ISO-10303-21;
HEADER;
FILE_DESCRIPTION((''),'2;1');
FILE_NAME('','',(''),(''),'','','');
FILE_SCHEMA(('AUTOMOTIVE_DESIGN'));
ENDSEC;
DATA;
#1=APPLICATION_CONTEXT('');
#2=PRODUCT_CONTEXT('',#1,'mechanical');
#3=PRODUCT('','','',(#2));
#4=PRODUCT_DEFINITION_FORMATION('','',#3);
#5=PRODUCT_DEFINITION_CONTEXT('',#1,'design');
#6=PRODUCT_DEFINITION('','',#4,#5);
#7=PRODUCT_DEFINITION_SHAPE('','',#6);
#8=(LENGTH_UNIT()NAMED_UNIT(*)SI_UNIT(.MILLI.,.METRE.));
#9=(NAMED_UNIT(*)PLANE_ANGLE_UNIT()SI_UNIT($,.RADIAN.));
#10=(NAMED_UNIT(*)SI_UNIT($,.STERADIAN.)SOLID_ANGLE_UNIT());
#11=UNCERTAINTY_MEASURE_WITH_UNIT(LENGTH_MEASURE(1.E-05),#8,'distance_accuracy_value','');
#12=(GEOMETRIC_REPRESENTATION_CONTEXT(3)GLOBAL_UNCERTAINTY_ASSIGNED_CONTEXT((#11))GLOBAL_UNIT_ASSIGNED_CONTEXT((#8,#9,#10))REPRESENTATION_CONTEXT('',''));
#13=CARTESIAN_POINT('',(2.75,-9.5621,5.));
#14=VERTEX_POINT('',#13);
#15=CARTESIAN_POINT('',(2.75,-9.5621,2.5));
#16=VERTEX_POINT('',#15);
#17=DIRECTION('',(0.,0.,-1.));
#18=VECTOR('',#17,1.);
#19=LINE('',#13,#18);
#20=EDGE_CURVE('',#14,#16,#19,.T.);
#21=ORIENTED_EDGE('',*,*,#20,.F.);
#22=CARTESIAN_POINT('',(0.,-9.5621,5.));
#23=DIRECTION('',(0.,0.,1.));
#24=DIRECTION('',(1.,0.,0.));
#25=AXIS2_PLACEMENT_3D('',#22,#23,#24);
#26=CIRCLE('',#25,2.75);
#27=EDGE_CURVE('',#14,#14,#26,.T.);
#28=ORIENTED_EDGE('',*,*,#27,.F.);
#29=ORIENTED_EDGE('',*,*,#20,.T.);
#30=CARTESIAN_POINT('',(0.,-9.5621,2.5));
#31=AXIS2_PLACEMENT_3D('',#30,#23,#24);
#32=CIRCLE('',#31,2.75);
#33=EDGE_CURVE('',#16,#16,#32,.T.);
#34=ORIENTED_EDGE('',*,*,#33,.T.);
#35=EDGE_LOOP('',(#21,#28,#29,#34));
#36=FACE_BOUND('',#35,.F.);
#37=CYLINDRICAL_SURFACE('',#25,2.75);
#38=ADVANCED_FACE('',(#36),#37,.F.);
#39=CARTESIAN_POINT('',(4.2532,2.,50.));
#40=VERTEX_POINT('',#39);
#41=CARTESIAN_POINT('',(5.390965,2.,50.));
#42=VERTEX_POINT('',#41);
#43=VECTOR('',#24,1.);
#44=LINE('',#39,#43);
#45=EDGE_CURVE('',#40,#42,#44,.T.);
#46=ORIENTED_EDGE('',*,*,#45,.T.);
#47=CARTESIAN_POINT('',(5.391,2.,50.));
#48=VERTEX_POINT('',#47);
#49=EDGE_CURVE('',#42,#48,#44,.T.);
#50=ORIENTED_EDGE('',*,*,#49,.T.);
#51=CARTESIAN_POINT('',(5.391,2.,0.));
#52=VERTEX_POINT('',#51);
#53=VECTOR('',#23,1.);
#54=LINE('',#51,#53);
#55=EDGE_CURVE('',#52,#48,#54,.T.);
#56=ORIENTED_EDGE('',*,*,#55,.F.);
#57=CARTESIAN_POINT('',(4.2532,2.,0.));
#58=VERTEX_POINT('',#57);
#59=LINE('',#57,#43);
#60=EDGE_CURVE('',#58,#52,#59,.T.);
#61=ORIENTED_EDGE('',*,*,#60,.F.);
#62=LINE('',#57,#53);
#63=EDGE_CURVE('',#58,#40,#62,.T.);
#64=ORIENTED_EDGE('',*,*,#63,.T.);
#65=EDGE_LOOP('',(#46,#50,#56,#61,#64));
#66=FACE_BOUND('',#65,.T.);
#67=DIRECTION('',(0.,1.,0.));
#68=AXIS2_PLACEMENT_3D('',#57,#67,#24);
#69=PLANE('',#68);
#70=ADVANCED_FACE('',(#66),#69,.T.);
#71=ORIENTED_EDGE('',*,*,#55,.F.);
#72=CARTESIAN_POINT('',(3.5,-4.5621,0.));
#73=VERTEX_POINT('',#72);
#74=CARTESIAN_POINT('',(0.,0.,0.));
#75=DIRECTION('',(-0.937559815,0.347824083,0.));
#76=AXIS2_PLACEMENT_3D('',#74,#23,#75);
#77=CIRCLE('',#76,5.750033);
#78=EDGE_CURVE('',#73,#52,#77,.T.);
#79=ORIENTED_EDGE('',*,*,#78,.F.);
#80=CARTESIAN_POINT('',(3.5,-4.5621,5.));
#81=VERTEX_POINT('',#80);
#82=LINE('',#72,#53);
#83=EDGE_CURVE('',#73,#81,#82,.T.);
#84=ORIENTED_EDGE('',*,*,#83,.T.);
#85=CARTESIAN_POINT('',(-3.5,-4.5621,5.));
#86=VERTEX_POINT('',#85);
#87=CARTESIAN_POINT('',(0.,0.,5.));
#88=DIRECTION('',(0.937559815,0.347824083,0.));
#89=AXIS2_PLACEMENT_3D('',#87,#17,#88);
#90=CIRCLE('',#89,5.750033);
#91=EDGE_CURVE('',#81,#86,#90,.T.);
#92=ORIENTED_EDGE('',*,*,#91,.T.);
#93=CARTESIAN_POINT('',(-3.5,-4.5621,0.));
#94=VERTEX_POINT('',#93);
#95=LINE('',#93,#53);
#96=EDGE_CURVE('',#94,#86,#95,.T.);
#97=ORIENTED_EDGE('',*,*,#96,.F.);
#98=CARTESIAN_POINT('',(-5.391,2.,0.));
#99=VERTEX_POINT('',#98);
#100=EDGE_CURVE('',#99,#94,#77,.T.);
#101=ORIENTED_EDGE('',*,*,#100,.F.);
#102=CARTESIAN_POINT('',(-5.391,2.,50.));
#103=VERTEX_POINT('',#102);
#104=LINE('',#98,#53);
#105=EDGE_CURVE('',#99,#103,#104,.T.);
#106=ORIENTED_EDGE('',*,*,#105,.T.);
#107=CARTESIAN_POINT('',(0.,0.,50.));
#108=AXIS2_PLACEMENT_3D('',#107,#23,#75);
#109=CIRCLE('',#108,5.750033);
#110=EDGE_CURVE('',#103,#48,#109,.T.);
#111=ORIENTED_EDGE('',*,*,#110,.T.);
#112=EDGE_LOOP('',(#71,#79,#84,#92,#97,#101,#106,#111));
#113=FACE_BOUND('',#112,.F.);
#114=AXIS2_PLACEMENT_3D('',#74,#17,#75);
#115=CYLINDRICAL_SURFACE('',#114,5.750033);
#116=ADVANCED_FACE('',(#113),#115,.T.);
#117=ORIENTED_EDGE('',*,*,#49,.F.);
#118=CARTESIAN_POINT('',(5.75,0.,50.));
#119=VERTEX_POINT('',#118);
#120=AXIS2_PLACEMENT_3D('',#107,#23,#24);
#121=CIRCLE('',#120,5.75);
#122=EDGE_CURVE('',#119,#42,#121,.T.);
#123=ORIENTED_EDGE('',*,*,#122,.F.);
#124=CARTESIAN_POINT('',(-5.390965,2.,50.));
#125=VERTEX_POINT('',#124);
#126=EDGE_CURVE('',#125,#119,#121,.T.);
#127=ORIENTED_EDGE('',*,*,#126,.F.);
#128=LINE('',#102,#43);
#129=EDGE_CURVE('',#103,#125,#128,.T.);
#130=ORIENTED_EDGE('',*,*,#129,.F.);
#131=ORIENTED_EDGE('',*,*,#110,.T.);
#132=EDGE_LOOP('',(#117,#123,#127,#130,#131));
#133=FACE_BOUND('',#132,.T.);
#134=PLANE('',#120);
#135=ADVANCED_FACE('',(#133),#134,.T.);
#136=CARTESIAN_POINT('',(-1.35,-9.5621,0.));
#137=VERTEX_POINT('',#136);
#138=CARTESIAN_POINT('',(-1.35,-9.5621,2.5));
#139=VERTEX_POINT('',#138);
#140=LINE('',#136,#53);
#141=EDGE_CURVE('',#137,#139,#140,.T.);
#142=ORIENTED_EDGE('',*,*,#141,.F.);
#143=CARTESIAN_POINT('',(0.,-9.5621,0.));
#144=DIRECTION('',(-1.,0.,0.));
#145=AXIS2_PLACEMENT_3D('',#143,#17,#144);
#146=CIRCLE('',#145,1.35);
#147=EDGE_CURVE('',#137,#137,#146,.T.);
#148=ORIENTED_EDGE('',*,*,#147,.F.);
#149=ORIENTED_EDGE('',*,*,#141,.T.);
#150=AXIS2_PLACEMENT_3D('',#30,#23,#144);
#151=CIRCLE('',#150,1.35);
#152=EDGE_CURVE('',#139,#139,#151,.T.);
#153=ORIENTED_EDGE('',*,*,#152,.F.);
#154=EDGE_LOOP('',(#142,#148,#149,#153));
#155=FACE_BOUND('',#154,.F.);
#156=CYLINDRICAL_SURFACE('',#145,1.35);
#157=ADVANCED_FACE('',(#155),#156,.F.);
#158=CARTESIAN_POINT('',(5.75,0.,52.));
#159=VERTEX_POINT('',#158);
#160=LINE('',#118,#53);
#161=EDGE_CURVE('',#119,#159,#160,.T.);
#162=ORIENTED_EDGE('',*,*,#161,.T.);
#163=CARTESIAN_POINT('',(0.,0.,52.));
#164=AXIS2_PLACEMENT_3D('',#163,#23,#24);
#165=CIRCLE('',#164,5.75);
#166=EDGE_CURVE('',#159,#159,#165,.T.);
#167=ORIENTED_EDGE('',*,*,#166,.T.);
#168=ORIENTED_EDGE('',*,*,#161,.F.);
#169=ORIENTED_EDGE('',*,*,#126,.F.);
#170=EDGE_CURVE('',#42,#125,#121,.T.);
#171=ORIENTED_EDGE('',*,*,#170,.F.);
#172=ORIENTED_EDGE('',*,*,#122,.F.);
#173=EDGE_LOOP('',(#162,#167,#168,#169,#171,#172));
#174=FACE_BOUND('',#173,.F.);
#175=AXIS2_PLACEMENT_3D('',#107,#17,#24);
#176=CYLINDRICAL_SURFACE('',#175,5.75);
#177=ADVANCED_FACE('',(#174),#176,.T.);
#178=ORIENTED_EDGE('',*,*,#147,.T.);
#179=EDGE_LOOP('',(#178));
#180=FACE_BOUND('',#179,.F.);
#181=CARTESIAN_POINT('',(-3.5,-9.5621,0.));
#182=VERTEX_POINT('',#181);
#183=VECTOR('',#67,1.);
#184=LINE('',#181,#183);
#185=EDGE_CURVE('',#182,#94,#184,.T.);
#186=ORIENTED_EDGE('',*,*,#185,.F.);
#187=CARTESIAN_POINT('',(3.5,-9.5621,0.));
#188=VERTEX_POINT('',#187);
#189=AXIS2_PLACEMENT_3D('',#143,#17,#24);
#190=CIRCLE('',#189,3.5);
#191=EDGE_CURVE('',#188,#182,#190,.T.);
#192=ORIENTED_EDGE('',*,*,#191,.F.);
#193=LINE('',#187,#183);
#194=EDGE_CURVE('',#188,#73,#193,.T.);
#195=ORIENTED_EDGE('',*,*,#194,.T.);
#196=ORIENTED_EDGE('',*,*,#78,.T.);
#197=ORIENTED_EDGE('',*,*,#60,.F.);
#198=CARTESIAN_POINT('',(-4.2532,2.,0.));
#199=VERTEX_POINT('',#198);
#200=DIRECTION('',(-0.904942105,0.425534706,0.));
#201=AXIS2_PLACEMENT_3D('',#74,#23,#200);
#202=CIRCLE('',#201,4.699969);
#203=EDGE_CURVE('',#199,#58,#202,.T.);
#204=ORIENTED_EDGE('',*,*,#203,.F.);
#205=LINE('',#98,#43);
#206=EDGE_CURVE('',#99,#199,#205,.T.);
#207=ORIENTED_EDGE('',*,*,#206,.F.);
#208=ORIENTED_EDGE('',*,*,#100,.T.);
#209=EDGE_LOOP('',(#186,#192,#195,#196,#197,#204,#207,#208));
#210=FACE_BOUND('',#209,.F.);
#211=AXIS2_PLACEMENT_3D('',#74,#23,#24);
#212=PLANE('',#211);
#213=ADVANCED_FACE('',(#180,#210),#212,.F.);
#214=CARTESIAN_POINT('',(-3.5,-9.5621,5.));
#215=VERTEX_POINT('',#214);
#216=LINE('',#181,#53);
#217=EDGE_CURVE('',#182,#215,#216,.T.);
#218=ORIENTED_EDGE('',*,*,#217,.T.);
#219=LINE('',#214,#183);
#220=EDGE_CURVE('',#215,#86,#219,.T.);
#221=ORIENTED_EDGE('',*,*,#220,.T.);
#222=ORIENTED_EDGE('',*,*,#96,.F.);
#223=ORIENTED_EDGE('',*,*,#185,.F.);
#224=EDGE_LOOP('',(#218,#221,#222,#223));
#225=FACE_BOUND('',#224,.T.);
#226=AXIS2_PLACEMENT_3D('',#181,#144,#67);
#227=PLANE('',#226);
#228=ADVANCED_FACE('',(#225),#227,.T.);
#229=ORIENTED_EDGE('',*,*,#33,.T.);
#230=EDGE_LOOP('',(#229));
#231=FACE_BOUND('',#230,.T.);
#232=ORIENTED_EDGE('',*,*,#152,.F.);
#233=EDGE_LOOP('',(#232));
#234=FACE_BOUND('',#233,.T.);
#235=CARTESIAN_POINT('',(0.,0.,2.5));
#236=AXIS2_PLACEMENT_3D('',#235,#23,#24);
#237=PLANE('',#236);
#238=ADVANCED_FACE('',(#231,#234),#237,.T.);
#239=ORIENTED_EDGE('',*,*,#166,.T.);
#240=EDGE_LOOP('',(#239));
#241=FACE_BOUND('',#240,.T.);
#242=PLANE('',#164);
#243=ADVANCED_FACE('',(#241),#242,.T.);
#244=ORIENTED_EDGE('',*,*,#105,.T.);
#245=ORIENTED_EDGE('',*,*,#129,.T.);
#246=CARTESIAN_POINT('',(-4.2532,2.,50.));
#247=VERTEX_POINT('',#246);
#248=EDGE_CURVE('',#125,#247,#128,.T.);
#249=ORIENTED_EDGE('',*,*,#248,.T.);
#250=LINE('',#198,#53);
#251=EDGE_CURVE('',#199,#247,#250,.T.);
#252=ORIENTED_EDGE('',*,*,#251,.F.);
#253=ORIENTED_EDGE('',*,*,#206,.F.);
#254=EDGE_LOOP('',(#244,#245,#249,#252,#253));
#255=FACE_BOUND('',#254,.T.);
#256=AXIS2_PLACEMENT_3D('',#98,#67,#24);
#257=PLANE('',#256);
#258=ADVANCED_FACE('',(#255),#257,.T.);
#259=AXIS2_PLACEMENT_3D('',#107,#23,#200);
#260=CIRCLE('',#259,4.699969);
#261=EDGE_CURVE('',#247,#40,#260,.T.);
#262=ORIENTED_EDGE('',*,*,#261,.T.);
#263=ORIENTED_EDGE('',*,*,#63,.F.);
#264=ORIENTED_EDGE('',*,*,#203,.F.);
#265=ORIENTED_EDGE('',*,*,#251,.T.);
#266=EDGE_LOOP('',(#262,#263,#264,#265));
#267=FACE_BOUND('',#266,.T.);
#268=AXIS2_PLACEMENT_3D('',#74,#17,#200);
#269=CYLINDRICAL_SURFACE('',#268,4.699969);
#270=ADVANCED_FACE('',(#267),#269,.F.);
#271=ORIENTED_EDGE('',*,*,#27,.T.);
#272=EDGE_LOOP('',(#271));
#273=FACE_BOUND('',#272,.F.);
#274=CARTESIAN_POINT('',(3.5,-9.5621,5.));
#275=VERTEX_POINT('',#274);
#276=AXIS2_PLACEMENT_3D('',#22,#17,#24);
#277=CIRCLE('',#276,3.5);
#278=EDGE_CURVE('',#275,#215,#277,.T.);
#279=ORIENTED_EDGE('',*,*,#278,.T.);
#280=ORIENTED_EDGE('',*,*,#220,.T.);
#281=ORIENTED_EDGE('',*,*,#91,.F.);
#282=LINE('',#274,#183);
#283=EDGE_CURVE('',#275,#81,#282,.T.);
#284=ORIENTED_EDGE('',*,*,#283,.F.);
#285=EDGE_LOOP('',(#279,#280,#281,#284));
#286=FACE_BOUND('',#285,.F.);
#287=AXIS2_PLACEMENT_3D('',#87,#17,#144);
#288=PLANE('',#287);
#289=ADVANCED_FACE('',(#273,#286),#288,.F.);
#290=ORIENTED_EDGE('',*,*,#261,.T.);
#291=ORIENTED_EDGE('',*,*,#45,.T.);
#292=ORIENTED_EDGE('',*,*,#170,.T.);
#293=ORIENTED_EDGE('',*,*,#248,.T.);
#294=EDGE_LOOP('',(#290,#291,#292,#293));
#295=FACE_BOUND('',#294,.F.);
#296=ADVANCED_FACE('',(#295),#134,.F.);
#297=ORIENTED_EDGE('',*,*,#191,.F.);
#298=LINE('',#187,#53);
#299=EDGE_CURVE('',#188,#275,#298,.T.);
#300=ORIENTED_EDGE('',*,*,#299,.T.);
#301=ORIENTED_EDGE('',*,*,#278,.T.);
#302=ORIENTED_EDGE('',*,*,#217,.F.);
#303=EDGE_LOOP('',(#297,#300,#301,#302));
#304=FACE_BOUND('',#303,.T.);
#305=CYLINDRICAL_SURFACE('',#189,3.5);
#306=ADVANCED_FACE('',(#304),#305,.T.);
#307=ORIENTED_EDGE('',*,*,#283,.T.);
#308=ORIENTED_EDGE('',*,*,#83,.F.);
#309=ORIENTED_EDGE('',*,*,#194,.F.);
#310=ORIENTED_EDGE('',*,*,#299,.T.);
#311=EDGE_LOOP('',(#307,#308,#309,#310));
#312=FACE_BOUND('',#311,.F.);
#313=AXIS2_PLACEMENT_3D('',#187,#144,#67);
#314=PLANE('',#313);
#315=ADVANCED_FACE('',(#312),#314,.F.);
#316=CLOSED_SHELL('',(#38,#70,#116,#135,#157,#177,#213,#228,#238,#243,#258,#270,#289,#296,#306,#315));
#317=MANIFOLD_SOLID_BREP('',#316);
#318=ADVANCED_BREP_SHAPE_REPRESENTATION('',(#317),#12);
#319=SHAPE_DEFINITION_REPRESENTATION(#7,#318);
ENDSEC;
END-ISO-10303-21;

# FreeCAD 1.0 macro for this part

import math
import FreeCAD as App
import Part
import Sketcher

V = App.Vector

doc = App.newDocument("Part")
params = doc.addObject("Spreadsheet::Sheet", "Params")
for row, (alias, value) in enumerate([
    ("sketch1_radius", "4.7 mm"),
    ("sketch1_radius2", "5.75 mm"),
    ("pad1_length", "50 mm"),
    ("sketch2_diameter", "11.5 mm"),
    ("pad2_length", "2 mm"),
    ("sketch3_radius", "3.5 mm"),
    ("sketch3_height", "5 mm"),
    ("sketch3_radius2", "5.75 mm"),
    ("pad3_length", "5 mm"),
    ("sketch4_diameter", "2.7 mm"),
    ("sketch5_diameter", "5.5 mm"),
    ("sketch5_diameter2", "2.7 mm"),
    ("pocket2_length", "2.5 mm"),
], start=1):
    params.set(f"A{row}", alias)
    params.set(f"B{row}", "=" + value)
    params.setAlias(f"B{row}", alias)

body = doc.addObject("PartDesign::Body", "Body")

sketch1 = body.newObject("Sketcher::SketchObject", "Sketch")
sketch1.AttachmentSupport = (doc.getObject("XY_Plane"), [""])
sketch1.MapMode = "FlatFace"
sketch1.addGeometry([
    Part.ArcOfCircle(Part.Circle(V(0, 0, 0), V(0, 0, 1), 4.7), math.radians(155), math.radians(385)),
    Part.LineSegment(V(-4.3, 2, 0), V(-5.4, 2, 0)),
    Part.ArcOfCircle(Part.Circle(V(0, 0, 0), V(0, 0, 1), 5.8), math.radians(160), math.radians(380)),
    Part.LineSegment(V(5.4, 2, 0), V(4.3, 2, 0)),
], False)
sketch1.addConstraint([
    Sketcher.Constraint("Coincident", 0, 1, 1, 1),
    Sketcher.Constraint("Coincident", 1, 2, 2, 1),
    Sketcher.Constraint("Coincident", 2, 2, 3, 1),
    Sketcher.Constraint("Coincident", 3, 2, 0, 2),
    Sketcher.Constraint("Horizontal", 1),
    Sketcher.Constraint("Horizontal", 3),
    Sketcher.Constraint("Coincident", 0, 3, -1, 1),
    Sketcher.Constraint("Coincident", 2, 3, -1, 1),
    Sketcher.Constraint("Horizontal", 1, 2, 2, 2),
    Sketcher.Constraint("Radius", 0, 4.7),
    Sketcher.Constraint("Radius", 2, 5.75),
    Sketcher.Constraint("DistanceY", -1, 1, 0, 1, 2.0),
])
sketch1.setExpression("Constraints[9]", "Params.sketch1_radius")
sketch1.setExpression("Constraints[10]", "Params.sketch1_radius2")
pad1 = body.newObject("PartDesign::Pad", "Pad")
pad1.Profile = sketch1
pad1.setExpression("Length", "Params.pad1_length")

sketch2 = body.newObject("Sketcher::SketchObject", "Sketch001")
sketch2.AttachmentSupport = (doc.getObject("XY_Plane"), [""])
sketch2.MapMode = "FlatFace"
sketch2.AttachmentOffset = App.Placement(V(0, 0, 50), App.Rotation())
sketch2.addGeometry(Part.Circle(V(0, 0, 0), V(0, 0, 1), 6), False)
sketch2.addConstraint([
    Sketcher.Constraint("Coincident", 0, 3, -1, 1),
    Sketcher.Constraint("Diameter", 0, 11.5),
])
sketch2.setExpression("Constraints[1]", "Params.sketch2_diameter")
pad2 = body.newObject("PartDesign::Pad", "Pad001")
pad2.Profile = sketch2
pad2.setExpression("Length", "Params.pad2_length")

sketch3 = body.newObject("Sketcher::SketchObject", "Sketch002")
sketch3.AttachmentSupport = (doc.getObject("XY_Plane"), [""])
sketch3.MapMode = "FlatFace"
sketch3.addGeometry([
    Part.ArcOfCircle(Part.Circle(V(0, 0, 0), V(0, 0, 1), 5.8), math.radians(-127), math.radians(-53)),
    Part.LineSegment(V(3.5, -4.6, 0), V(3.5, -9.6, 0)),
    Part.ArcOfCircle(Part.Circle(V(0, -9.6, 0), V(0, 0, 1), 3.5), math.radians(180), math.radians(360)),
    Part.LineSegment(V(-3.5, -9.6, 0), V(-3.5, -4.6, 0)),
], False)
sketch3.addConstraint([
    Sketcher.Constraint("Coincident", 0, 2, 1, 1),
    Sketcher.Constraint("Tangent", 1, 2, 2, 2),
    Sketcher.Constraint("Tangent", 2, 1, 3, 1),
    Sketcher.Constraint("Coincident", 3, 2, 0, 1),
    Sketcher.Constraint("Vertical", 1),
    Sketcher.Constraint("Vertical", 3),
    Sketcher.Constraint("Coincident", 0, 3, -1, 1),
    Sketcher.Constraint("PointOnObject", 2, 3, -2),
    Sketcher.Constraint("Radius", 2, 3.5),
    Sketcher.Constraint("DistanceY", 1, 2, 1, 1, 5.0),
    Sketcher.Constraint("Radius", 0, 5.75),
])
sketch3.setExpression("Constraints[8]", "Params.sketch3_radius")
sketch3.setExpression("Constraints[9]", "Params.sketch3_height")
sketch3.setExpression("Constraints[10]", "Params.sketch3_radius2")
pad3 = body.newObject("PartDesign::Pad", "Pad002")
pad3.Profile = sketch3
pad3.setExpression("Length", "Params.pad3_length")

sketch4 = body.newObject("Sketcher::SketchObject", "Sketch003")
sketch4.AttachmentSupport = (doc.getObject("XY_Plane"), [""])
sketch4.MapMode = "FlatFace"
sketch4.addGeometry(Part.Circle(V(0, -9.6, 0), V(0, 0, 1), 1.4), False)
sketch4.addConstraint([
    Sketcher.Constraint("PointOnObject", 0, 3, -2),
    Sketcher.Constraint("Diameter", 0, 2.7),
    Sketcher.Constraint("DistanceY", 0, 3, -1, 1, 9.562),
])
sketch4.setExpression("Constraints[1]", "Params.sketch4_diameter")
pocket1 = body.newObject("PartDesign::Pocket", "Pocket")
pocket1.Profile = sketch4
pocket1.Type = "ThroughAll"
pocket1.Reversed = True

sketch5 = body.newObject("Sketcher::SketchObject", "Sketch004")
sketch5.AttachmentSupport = (doc.getObject("XY_Plane"), [""])
sketch5.MapMode = "FlatFace"
sketch5.AttachmentOffset = App.Placement(V(0, 0, 5), App.Rotation())
sketch5.addGeometry([
    Part.Circle(V(0, -9.6, 0), V(0, 0, 1), 2.8),
    Part.Circle(V(0, -9.6, 0), V(0, 0, 1), 1.4),
], False)
sketch5.addConstraint([
    Sketcher.Constraint("Coincident", 1, 3, 0, 3),
    Sketcher.Constraint("PointOnObject", 0, 3, -2),
    Sketcher.Constraint("Diameter", 0, 5.5),
    Sketcher.Constraint("Diameter", 1, 2.7),
    Sketcher.Constraint("DistanceY", 0, 3, -1, 1, 9.562),
])
sketch5.setExpression("Constraints[2]", "Params.sketch5_diameter")
sketch5.setExpression("Constraints[3]", "Params.sketch5_diameter2")
pocket2 = body.newObject("PartDesign::Pocket", "Pocket001")
pocket2.Profile = sketch5
pocket2.setExpression("Length", "Params.pocket2_length")

doc.recompute()
